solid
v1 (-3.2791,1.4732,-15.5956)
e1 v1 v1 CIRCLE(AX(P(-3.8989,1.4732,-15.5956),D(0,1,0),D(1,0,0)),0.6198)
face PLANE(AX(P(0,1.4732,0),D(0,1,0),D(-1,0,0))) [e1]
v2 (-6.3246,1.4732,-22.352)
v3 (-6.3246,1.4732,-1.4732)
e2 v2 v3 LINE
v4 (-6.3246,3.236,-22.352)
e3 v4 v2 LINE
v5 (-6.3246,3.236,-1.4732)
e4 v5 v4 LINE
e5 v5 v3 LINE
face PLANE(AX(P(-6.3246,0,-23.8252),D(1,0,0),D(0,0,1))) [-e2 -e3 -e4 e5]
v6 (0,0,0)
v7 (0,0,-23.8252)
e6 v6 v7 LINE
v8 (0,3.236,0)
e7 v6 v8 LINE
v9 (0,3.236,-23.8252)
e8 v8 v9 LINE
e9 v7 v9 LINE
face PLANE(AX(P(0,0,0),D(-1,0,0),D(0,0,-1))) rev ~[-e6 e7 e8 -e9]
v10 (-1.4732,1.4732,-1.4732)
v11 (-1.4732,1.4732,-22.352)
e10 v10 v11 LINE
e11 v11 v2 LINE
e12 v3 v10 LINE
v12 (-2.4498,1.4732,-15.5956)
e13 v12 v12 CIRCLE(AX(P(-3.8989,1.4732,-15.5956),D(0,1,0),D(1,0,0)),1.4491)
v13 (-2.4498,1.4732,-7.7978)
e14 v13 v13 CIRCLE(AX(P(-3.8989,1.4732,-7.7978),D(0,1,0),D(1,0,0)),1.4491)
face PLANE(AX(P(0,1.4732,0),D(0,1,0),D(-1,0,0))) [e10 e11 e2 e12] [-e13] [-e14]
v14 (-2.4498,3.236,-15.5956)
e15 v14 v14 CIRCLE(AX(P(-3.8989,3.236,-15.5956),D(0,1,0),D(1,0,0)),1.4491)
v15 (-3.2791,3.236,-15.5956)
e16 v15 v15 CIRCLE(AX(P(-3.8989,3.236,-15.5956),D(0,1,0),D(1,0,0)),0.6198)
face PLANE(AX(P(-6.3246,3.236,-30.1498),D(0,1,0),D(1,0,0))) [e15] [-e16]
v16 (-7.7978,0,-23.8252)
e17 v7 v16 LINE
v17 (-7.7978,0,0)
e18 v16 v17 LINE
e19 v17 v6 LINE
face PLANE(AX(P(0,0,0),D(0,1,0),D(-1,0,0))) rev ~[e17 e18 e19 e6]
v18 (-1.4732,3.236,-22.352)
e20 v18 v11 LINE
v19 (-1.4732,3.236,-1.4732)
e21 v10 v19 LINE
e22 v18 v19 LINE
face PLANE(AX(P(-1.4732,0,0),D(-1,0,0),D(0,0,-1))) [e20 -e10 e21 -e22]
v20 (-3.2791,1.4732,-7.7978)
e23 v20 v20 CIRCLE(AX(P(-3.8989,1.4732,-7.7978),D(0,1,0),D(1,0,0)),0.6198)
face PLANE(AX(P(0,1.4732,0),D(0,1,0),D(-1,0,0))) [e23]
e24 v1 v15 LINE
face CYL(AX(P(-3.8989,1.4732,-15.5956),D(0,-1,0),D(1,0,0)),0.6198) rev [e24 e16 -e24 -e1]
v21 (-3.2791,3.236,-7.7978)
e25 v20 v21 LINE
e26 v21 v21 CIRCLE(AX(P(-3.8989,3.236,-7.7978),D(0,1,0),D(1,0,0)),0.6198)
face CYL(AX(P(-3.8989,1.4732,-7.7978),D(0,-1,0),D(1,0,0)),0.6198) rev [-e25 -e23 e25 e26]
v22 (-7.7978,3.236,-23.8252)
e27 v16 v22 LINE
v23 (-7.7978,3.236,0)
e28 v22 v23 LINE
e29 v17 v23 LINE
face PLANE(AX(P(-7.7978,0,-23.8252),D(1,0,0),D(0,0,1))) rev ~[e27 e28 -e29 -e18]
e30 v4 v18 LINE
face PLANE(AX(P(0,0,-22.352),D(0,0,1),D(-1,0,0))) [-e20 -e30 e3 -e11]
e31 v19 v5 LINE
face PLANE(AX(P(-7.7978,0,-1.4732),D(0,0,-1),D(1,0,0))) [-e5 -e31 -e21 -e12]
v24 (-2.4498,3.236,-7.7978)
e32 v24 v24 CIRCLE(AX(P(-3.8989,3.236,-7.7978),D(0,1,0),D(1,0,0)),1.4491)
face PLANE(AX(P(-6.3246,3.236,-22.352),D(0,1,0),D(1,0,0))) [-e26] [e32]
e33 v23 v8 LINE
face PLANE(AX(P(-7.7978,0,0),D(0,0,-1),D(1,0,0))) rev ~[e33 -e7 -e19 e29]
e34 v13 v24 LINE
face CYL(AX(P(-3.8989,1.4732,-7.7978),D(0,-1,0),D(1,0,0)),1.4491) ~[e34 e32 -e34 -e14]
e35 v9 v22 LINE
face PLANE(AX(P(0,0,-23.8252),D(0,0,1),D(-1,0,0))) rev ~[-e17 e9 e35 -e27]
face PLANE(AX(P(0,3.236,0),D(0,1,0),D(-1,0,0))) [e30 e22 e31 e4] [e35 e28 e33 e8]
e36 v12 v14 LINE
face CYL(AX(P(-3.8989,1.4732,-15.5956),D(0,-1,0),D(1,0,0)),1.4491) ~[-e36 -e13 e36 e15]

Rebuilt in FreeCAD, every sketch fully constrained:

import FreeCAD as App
import Part
import Sketcher

V = App.Vector
Q = App.Units.Quantity


def faces_at(feature, points):
    """Names of the faces that lie closest to the given points."""
    faces = feature.Shape.Faces
    near = lambda p: min(range(len(faces)), key=lambda i: faces[i].distToShape(Part.Vertex(*p))[0])
    return sorted({f"Face{near(p) + 1}" for p in points})

doc = App.newDocument("Part")
body = doc.addObject("PartDesign::Body", "Body")

sketch1 = body.newObject("Sketcher::SketchObject", "Sketch")
sketch1.AttachmentSupport = (doc.getObject("XZ_Plane"), [""])
sketch1.MapMode = "FlatFace"
sketch1.addGeometry([
    Part.LineSegment(V(-8, 0, 0), V(0, 0, 0)),
    Part.LineSegment(V(0, 0, 0), V(0, -24, 0)),
    Part.LineSegment(V(0, -24, 0), V(-8, -24, 0)),
    Part.LineSegment(V(-8, -24, 0), V(-8, 0, 0)),
], False)
sketch1.addConstraint([
    Sketcher.Constraint("Coincident", 0, 2, 1, 1),
    Sketcher.Constraint("Coincident", 1, 2, 2, 1),
    Sketcher.Constraint("Coincident", 2, 2, 3, 1),
    Sketcher.Constraint("Coincident", 3, 2, 0, 1),
    Sketcher.Constraint("Horizontal", 0),
    Sketcher.Constraint("Vertical", 1),
    Sketcher.Constraint("Horizontal", 2),
    Sketcher.Constraint("Vertical", 3),
    Sketcher.Constraint("Coincident", 0, 2, -1, 1),
    Sketcher.Constraint("DistanceX", 0, 1, 0, 2, Q("0.307 in")),
    Sketcher.Constraint("DistanceY", 1, 2, 1, 1, Q("0.938 in")),
])
pad1 = body.newObject("PartDesign::Pad", "Pad")
pad1.Profile = sketch1
pad1.Length = Q("0.1274016 in")
pad1.Reversed = True
doc.recompute()

thickness = body.newObject("PartDesign::Thickness", "Thickness")
thickness.Base = (pad1, faces_at(pad1, [(-2.599, 3.236, -7.942)]))
thickness.Value = Q("0.058 in")
thickness.Reversed = True
thickness.Join = "Intersection"

sketch2 = body.newObject("Sketcher::SketchObject", "Sketch001")
sketch2.AttachmentSupport = (doc.getObject("XZ_Plane"), [""])
sketch2.MapMode = "FlatFace"
sketch2.AttachmentOffset = App.Placement(V(0, 0, -0.058 * 25.4), App.Rotation())
sketch2.addGeometry([
    Part.Circle(V(-3.9, -7.8, 0), V(0, 0, 1), 1.4),
    Part.Circle(V(-3.9, -7.8, 0), V(0, 0, 1), 0.6),
], False)
sketch2.addConstraint([
    Sketcher.Constraint("Coincident", 1, 3, 0, 3),
    Sketcher.Constraint("Diameter", 1, Q("0.0488 in")),
    Sketcher.Constraint("DistanceY", 0, 3, -1, 1, Q("0.307 in")),
    Sketcher.Constraint("Diameter", 0, Q("0.1141 in")),
    Sketcher.Constraint("DistanceX", 0, 3, -1, 1, Q("0.1535 in")),
])
pad2 = body.newObject("PartDesign::Pad", "Pad001")
pad2.Profile = sketch2
pad2.Length = Q("0.0694016 in")
pad2.Reversed = True
doc.recompute()

linearpattern = body.newObject("PartDesign::LinearPattern", "LinearPattern")
linearpattern.Originals = [pad2]
linearpattern.Direction = (doc.getObject("Z_Axis"), [""])
linearpattern.Mode = "offset"
linearpattern.Offset = Q("0.307 in")
linearpattern.Occurrences = 2
linearpattern.Reversed = True
body.Tip = linearpattern

doc.recompute()
